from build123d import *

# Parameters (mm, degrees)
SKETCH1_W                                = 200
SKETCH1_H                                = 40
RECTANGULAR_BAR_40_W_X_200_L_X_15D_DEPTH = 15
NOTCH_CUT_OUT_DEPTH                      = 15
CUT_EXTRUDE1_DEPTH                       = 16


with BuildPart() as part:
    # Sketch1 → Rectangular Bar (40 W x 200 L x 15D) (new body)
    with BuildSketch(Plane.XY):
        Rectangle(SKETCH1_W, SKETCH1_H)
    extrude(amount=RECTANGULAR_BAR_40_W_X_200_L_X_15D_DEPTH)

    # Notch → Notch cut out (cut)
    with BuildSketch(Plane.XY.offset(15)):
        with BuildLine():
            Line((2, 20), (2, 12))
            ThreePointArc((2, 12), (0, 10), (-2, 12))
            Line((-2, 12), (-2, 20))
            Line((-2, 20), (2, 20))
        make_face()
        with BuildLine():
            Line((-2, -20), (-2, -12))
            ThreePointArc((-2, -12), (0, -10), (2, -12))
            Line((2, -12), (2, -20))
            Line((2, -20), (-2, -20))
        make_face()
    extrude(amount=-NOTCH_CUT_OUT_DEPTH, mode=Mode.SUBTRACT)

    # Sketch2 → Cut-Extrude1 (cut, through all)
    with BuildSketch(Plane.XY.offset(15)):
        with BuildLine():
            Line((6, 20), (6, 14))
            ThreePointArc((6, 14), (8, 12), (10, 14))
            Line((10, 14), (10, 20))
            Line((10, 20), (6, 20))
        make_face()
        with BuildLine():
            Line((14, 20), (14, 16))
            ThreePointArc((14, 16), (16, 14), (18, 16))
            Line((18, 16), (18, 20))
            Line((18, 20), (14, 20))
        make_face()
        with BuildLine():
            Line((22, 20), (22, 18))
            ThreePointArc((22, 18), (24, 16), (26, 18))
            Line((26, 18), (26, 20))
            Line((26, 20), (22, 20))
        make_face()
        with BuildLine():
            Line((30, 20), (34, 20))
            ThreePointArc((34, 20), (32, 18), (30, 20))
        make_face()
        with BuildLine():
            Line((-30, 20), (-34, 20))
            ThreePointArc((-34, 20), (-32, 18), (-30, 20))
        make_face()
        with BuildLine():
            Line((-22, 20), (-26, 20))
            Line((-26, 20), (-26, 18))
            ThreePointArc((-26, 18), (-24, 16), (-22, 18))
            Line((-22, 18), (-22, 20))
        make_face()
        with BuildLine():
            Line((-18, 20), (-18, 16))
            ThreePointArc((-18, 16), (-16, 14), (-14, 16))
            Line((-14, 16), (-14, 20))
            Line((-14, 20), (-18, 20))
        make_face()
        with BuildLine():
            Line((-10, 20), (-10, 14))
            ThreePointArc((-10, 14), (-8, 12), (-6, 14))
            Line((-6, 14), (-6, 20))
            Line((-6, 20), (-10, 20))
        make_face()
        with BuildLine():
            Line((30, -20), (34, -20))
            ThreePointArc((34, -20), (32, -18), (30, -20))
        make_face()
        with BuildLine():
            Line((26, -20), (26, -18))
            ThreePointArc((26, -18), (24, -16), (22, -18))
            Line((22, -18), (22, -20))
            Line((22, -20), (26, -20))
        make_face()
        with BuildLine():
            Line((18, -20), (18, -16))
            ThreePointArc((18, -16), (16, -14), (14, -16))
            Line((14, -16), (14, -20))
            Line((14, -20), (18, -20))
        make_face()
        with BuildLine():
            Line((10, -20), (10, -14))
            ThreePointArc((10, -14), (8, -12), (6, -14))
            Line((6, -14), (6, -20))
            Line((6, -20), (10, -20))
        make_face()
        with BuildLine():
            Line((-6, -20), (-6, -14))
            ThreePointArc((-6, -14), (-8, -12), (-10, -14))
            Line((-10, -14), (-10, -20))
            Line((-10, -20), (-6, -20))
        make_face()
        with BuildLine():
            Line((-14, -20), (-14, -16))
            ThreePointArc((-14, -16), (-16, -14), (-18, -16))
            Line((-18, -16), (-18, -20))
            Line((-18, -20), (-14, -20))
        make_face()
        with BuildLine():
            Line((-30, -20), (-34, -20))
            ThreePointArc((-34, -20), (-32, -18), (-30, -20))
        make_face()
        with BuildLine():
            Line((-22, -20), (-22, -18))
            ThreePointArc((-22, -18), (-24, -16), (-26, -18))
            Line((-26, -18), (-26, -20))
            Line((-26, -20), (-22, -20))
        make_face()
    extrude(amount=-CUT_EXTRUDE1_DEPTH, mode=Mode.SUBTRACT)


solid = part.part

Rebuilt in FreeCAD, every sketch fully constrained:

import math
import FreeCAD as App
import Part
import Sketcher
from FreeCAD import Vector

doc = App.newDocument("Part")
body = doc.addObject("PartDesign::Body", "Body")

# Sketch on XY plane
sketch1 = body.newObject("Sketcher::SketchObject", "Sketch")
sketch1.AttachmentSupport = (doc.getObject("XY_Plane"), [""])
sketch1.MapMode = "FlatFace"
sketch1.addGeometry(Part.LineSegment(Vector(-100, 20, 0), Vector(-100, -20, 0)), False)
sketch1.addGeometry(Part.LineSegment(Vector(-100, -20, 0), Vector(100, -20, 0)), False)
sketch1.addGeometry(Part.LineSegment(Vector(100, -20, 0), Vector(100, 20, 0)), False)
sketch1.addGeometry(Part.LineSegment(Vector(100, 20, 0), Vector(-100, 20, 0)), False)
sketch1.addConstraint(Sketcher.Constraint("Coincident", 0, 2, 1, 1))
sketch1.addConstraint(Sketcher.Constraint("Coincident", 1, 2, 2, 1))
sketch1.addConstraint(Sketcher.Constraint("Coincident", 2, 2, 3, 1))
sketch1.addConstraint(Sketcher.Constraint("Coincident", 3, 2, 0, 1))
sketch1.addConstraint(Sketcher.Constraint("Vertical", 0))
sketch1.addConstraint(Sketcher.Constraint("Horizontal", 1))
sketch1.addConstraint(Sketcher.Constraint("Vertical", 2))
sketch1.addConstraint(Sketcher.Constraint("Horizontal", 3))
sketch1.addConstraint(Sketcher.Constraint("Symmetric", 0, 2, 2, 2, -1, 1))
sketch1.addConstraint(Sketcher.Constraint("DistanceX", 1, 1, 1, 2, 200.0))
sketch1.addConstraint(Sketcher.Constraint("DistanceY", 0, 2, 0, 1, 40.0))
pad1 = body.newObject("PartDesign::Pad", "Pad")
pad1.Profile = sketch1
pad1.Length = 15

# Sketch on XY plane
sketch2 = body.newObject("Sketcher::SketchObject", "Sketch001")
sketch2.AttachmentSupport = (doc.getObject("XY_Plane"), [""])
sketch2.MapMode = "FlatFace"
sketch2.AttachmentOffset = App.Placement(Vector(0, 0, 15), App.Rotation())
sketch2.addGeometry(Part.LineSegment(Vector(2, 12, 0), Vector(2, 20, 0)), False)
sketch2.addGeometry(Part.LineSegment(Vector(2, 20, 0), Vector(-2, 20, 0)), False)
sketch2.addGeometry(Part.LineSegment(Vector(-2, 20, 0), Vector(-2, 12, 0)), False)
sketch2.addGeometry(Part.ArcOfCircle(Part.Circle(Vector(0, 12, 0), Vector(0, 0, 1), 2), math.radians(180), math.radians(360)), False)
sketch2.addGeometry(Part.LineSegment(Vector(-2, -12, 0), Vector(-2, -20, 0)), False)
sketch2.addGeometry(Part.LineSegment(Vector(-2, -20, 0), Vector(2, -20, 0)), False)
sketch2.addGeometry(Part.LineSegment(Vector(2, -20, 0), Vector(2, -12, 0)), False)
sketch2.addGeometry(Part.ArcOfCircle(Part.Circle(Vector(0, -12, 0), Vector(0, 0, 1), 2), math.radians(0), math.radians(180)), False)
sketch2.addConstraint(Sketcher.Constraint("Coincident", 0, 2, 1, 1))
sketch2.addConstraint(Sketcher.Constraint("Coincident", 1, 2, 2, 1))
sketch2.addConstraint(Sketcher.Constraint("Tangent", 2, 2, 3, 1))
sketch2.addConstraint(Sketcher.Constraint("Tangent", 3, 2, 0, 1))
sketch2.addConstraint(Sketcher.Constraint("Coincident", 4, 2, 5, 1))
sketch2.addConstraint(Sketcher.Constraint("Coincident", 5, 2, 6, 1))
sketch2.addConstraint(Sketcher.Constraint("Tangent", 6, 2, 7, 1))
sketch2.addConstraint(Sketcher.Constraint("Tangent", 7, 2, 4, 1))
sketch2.addConstraint(Sketcher.Constraint("Vertical", 0))
sketch2.addConstraint(Sketcher.Constraint("Horizontal", 1))
sketch2.addConstraint(Sketcher.Constraint("Vertical", 2))
sketch2.addConstraint(Sketcher.Constraint("Vertical", 4))
sketch2.addConstraint(Sketcher.Constraint("Horizontal", 5))
sketch2.addConstraint(Sketcher.Constraint("Vertical", 6))
sketch2.addConstraint(Sketcher.Constraint("Equal", 3, 7))
sketch2.addConstraint(Sketcher.Constraint("Symmetric", 3, 3, 7, 3, -1, 1))
sketch2.addConstraint(Sketcher.Constraint("Symmetric", 1, 2, 4, 2, -1))
sketch2.addConstraint(Sketcher.Constraint("Radius", 3, 2.0))
sketch2.addConstraint(Sketcher.Constraint("DistanceY", 0, 1, 0, 2, 8.0))
sketch2.addConstraint(Sketcher.Constraint("DistanceY", -1, 1, 3, 3, 12.0))
pocket1 = body.newObject("PartDesign::Pocket", "Pocket")
pocket1.Profile = sketch2
pocket1.Length = 15

# Sketch on XY plane
sketch3 = body.newObject("Sketcher::SketchObject", "Sketch002")
sketch3.AttachmentSupport = (doc.getObject("XY_Plane"), [""])
sketch3.MapMode = "FlatFace"
sketch3.AttachmentOffset = App.Placement(Vector(0, 0, 15), App.Rotation())
sketch3.addGeometry(Part.LineSegment(Vector(6, 20, 0), Vector(6, 14, 0)), False)
sketch3.addGeometry(Part.ArcOfCircle(Part.Circle(Vector(8, 14, 0), Vector(0, 0, 1), 2), math.radians(180), math.radians(360)), False)
sketch3.addGeometry(Part.LineSegment(Vector(10, 14, 0), Vector(10, 20, 0)), False)
sketch3.addGeometry(Part.LineSegment(Vector(10, 20, 0), Vector(6, 20, 0)), False)
sketch3.addGeometry(Part.LineSegment(Vector(14, 20, 0), Vector(14, 16, 0)), False)
sketch3.addGeometry(Part.ArcOfCircle(Part.Circle(Vector(16, 16, 0), Vector(0, 0, 1), 2), math.radians(180), math.radians(360)), False)
sketch3.addGeometry(Part.LineSegment(Vector(18, 16, 0), Vector(18, 20, 0)), False)
sketch3.addGeometry(Part.LineSegment(Vector(18, 20, 0), Vector(14, 20, 0)), False)
sketch3.addGeometry(Part.LineSegment(Vector(22, 20, 0), Vector(22, 18, 0)), False)
sketch3.addGeometry(Part.ArcOfCircle(Part.Circle(Vector(24, 18, 0), Vector(0, 0, 1), 2), math.radians(180), math.radians(360)), False)
sketch3.addGeometry(Part.LineSegment(Vector(26, 18, 0), Vector(26, 20, 0)), False)
sketch3.addGeometry(Part.LineSegment(Vector(26, 20, 0), Vector(22, 20, 0)), False)
sketch3.addGeometry(Part.LineSegment(Vector(34, 20, 0), Vector(30, 20, 0)), False)
sketch3.addGeometry(Part.ArcOfCircle(Part.Circle(Vector(32, 20, 0), Vector(0, 0, 1), 2), math.radians(180), math.radians(360)), False)
sketch3.addGeometry(Part.LineSegment(Vector(-30, 20, 0), Vector(-34, 20, 0)), False)
sketch3.addGeometry(Part.ArcOfCircle(Part.Circle(Vector(-32, 20, 0), Vector(0, 0, 1), 2), math.radians(180), math.radians(360)), False)
sketch3.addGeometry(Part.LineSegment(Vector(-22, 20, 0), Vector(-26, 20, 0)), False)
sketch3.addGeometry(Part.LineSegment(Vector(-26, 20, 0), Vector(-26, 18, 0)), False)
sketch3.addGeometry(Part.ArcOfCircle(Part.Circle(Vector(-24, 18, 0), Vector(0, 0, 1), 2), math.radians(180), math.radians(360)), False)
sketch3.addGeometry(Part.LineSegment(Vector(-22, 18, 0), Vector(-22, 20, 0)), False)
sketch3.addGeometry(Part.LineSegment(Vector(-18, 20, 0), Vector(-18, 16, 0)), False)
sketch3.addGeometry(Part.ArcOfCircle(Part.Circle(Vector(-16, 16, 0), Vector(0, 0, 1), 2), math.radians(180), math.radians(360)), False)
sketch3.addGeometry(Part.LineSegment(Vector(-14, 16, 0), Vector(-14, 20, 0)), False)
sketch3.addGeometry(Part.LineSegment(Vector(-14, 20, 0), Vector(-18, 20, 0)), False)
sketch3.addGeometry(Part.LineSegment(Vector(-10, 20, 0), Vector(-10, 14, 0)), False)
sketch3.addGeometry(Part.ArcOfCircle(Part.Circle(Vector(-8, 14, 0), Vector(0, 0, 1), 2), math.radians(180), math.radians(360)), False)
sketch3.addGeometry(Part.LineSegment(Vector(-6, 14, 0), Vector(-6, 20, 0)), False)
sketch3.addGeometry(Part.LineSegment(Vector(-6, 20, 0), Vector(-10, 20, 0)), False)
sketch3.addGeometry(Part.LineSegment(Vector(30, -20, 0), Vector(34, -20, 0)), False)
sketch3.addGeometry(Part.ArcOfCircle(Part.Circle(Vector(32, -20, 0), Vector(0, 0, 1), 2), math.radians(0), math.radians(180)), False)
sketch3.addGeometry(Part.LineSegment(Vector(26, -20, 0), Vector(26, -18, 0)), False)
sketch3.addGeometry(Part.ArcOfCircle(Part.Circle(Vector(24, -18, 0), Vector(0, 0, 1), 2), math.radians(0), math.radians(180)), False)
sketch3.addGeometry(Part.LineSegment(Vector(22, -18, 0), Vector(22, -20, 0)), False)
sketch3.addGeometry(Part.LineSegment(Vector(22, -20, 0), Vector(26, -20, 0)), False)
sketch3.addGeometry(Part.LineSegment(Vector(18, -20, 0), Vector(18, -16, 0)), False)
sketch3.addGeometry(Part.ArcOfCircle(Part.Circle(Vector(16, -16, 0), Vector(0, 0, 1), 2), math.radians(0), math.radians(180)), False)
sketch3.addGeometry(Part.LineSegment(Vector(14, -16, 0), Vector(14, -20, 0)), False)
sketch3.addGeometry(Part.LineSegment(Vector(14, -20, 0), Vector(18, -20, 0)), False)
sketch3.addGeometry(Part.LineSegment(Vector(10, -20, 0), Vector(10, -14, 0)), False)
sketch3.addGeometry(Part.ArcOfCircle(Part.Circle(Vector(8, -14, 0), Vector(0, 0, 1), 2), math.radians(0), math.radians(180)), False)
sketch3.addGeometry(Part.LineSegment(Vector(6, -14, 0), Vector(6, -20, 0)), False)
sketch3.addGeometry(Part.LineSegment(Vector(6, -20, 0), Vector(10, -20, 0)), False)
sketch3.addGeometry(Part.LineSegment(Vector(-6, -20, 0), Vector(-6, -14, 0)), False)
sketch3.addGeometry(Part.ArcOfCircle(Part.Circle(Vector(-8, -14, 0), Vector(0, 0, 1), 2), math.radians(0), math.radians(180)), False)
sketch3.addGeometry(Part.LineSegment(Vector(-10, -14, 0), Vector(-10, -20, 0)), False)
sketch3.addGeometry(Part.LineSegment(Vector(-10, -20, 0), Vector(-6, -20, 0)), False)
sketch3.addGeometry(Part.LineSegment(Vector(-14, -20, 0), Vector(-14, -16, 0)), False)
sketch3.addGeometry(Part.ArcOfCircle(Part.Circle(Vector(-16, -16, 0), Vector(0, 0, 1), 2), math.radians(0), math.radians(180)), False)
sketch3.addGeometry(Part.LineSegment(Vector(-18, -16, 0), Vector(-18, -20, 0)), False)
sketch3.addGeometry(Part.LineSegment(Vector(-18, -20, 0), Vector(-14, -20, 0)), False)
sketch3.addGeometry(Part.LineSegment(Vector(-34, -20, 0), Vector(-30, -20, 0)), False)
sketch3.addGeometry(Part.ArcOfCircle(Part.Circle(Vector(-32, -20, 0), Vector(0, 0, 1), 2), math.radians(0), math.radians(180)), False)
sketch3.addGeometry(Part.LineSegment(Vector(-22, -20, 0), Vector(-22, -18, 0)), False)
sketch3.addGeometry(Part.ArcOfCircle(Part.Circle(Vector(-24, -18, 0), Vector(0, 0, 1), 2), math.radians(0), math.radians(180)), False)
sketch3.addGeometry(Part.LineSegment(Vector(-26, -18, 0), Vector(-26, -20, 0)), False)
sketch3.addGeometry(Part.LineSegment(Vector(-26, -20, 0), Vector(-22, -20, 0)), False)
sketch3.addConstraint(Sketcher.Constraint("Tangent", 0, 2, 1, 1))
sketch3.addConstraint(Sketcher.Constraint("Tangent", 1, 2, 2, 1))
sketch3.addConstraint(Sketcher.Constraint("Coincident", 2, 2, 3, 1))
sketch3.addConstraint(Sketcher.Constraint("Coincident", 3, 2, 0, 1))
sketch3.addConstraint(Sketcher.Constraint("Tangent", 4, 2, 5, 1))
sketch3.addConstraint(Sketcher.Constraint("Tangent", 5, 2, 6, 1))
sketch3.addConstraint(Sketcher.Constraint("Coincident", 6, 2, 7, 1))
sketch3.addConstraint(Sketcher.Constraint("Coincident", 7, 2, 4, 1))
sketch3.addConstraint(Sketcher.Constraint("Tangent", 8, 2, 9, 1))
sketch3.addConstraint(Sketcher.Constraint("Tangent", 9, 2, 10, 1))
sketch3.addConstraint(Sketcher.Constraint("Coincident", 10, 2, 11, 1))
sketch3.addConstraint(Sketcher.Constraint("Coincident", 11, 2, 8, 1))
sketch3.addConstraint(Sketcher.Constraint("Coincident", 12, 1, 13, 2))
sketch3.addConstraint(Sketcher.Constraint("Coincident", 13, 1, 12, 2))
sketch3.addConstraint(Sketcher.Constraint("Coincident", 14, 1, 15, 2))
sketch3.addConstraint(Sketcher.Constraint("Coincident", 15, 1, 14, 2))
sketch3.addConstraint(Sketcher.Constraint("Coincident", 16, 2, 17, 1))
sketch3.addConstraint(Sketcher.Constraint("Tangent", 17, 2, 18, 1))
sketch3.addConstraint(Sketcher.Constraint("Tangent", 18, 2, 19, 1))
sketch3.addConstraint(Sketcher.Constraint("Coincident", 19, 2, 16, 1))
sketch3.addConstraint(Sketcher.Constraint("Tangent", 20, 2, 21, 1))
sketch3.addConstraint(Sketcher.Constraint("Tangent", 21, 2, 22, 1))
sketch3.addConstraint(Sketcher.Constraint("Coincident", 22, 2, 23, 1))
sketch3.addConstraint(Sketcher.Constraint("Coincident", 23, 2, 20, 1))
sketch3.addConstraint(Sketcher.Constraint("Tangent", 24, 2, 25, 1))
sketch3.addConstraint(Sketcher.Constraint("Tangent", 25, 2, 26, 1))
sketch3.addConstraint(Sketcher.Constraint("Coincident", 26, 2, 27, 1))
sketch3.addConstraint(Sketcher.Constraint("Coincident", 27, 2, 24, 1))
sketch3.addConstraint(Sketcher.Constraint("Coincident", 28, 1, 29, 2))
sketch3.addConstraint(Sketcher.Constraint("Coincident", 29, 1, 28, 2))
sketch3.addConstraint(Sketcher.Constraint("Tangent", 30, 2, 31, 1))
sketch3.addConstraint(Sketcher.Constraint("Tangent", 31, 2, 32, 1))
sketch3.addConstraint(Sketcher.Constraint("Coincident", 32, 2, 33, 1))
sketch3.addConstraint(Sketcher.Constraint("Coincident", 33, 2, 30, 1))
sketch3.addConstraint(Sketcher.Constraint("Tangent", 34, 2, 35, 1))
sketch3.addConstraint(Sketcher.Constraint("Tangent", 35, 2, 36, 1))
sketch3.addConstraint(Sketcher.Constraint("Coincident", 36, 2, 37, 1))
sketch3.addConstraint(Sketcher.Constraint("Coincident", 37, 2, 34, 1))
sketch3.addConstraint(Sketcher.Constraint("Tangent", 38, 2, 39, 1))
sketch3.addConstraint(Sketcher.Constraint("Tangent", 39, 2, 40, 1))
sketch3.addConstraint(Sketcher.Constraint("Coincident", 40, 2, 41, 1))
sketch3.addConstraint(Sketcher.Constraint("Coincident", 41, 2, 38, 1))
sketch3.addConstraint(Sketcher.Constraint("Tangent", 42, 2, 43, 1))
sketch3.addConstraint(Sketcher.Constraint("Tangent", 43, 2, 44, 1))
sketch3.addConstraint(Sketcher.Constraint("Coincident", 44, 2, 45, 1))
sketch3.addConstraint(Sketcher.Constraint("Coincident", 45, 2, 42, 1))
sketch3.addConstraint(Sketcher.Constraint("Tangent", 46, 2, 47, 1))
sketch3.addConstraint(Sketcher.Constraint("Tangent", 47, 2, 48, 1))
sketch3.addConstraint(Sketcher.Constraint("Coincident", 48, 2, 49, 1))
sketch3.addConstraint(Sketcher.Constraint("Coincident", 49, 2, 46, 1))
sketch3.addConstraint(Sketcher.Constraint("Coincident", 50, 1, 51, 2))
sketch3.addConstraint(Sketcher.Constraint("Coincident", 51, 1, 50, 2))
sketch3.addConstraint(Sketcher.Constraint("Tangent", 52, 2, 53, 1))
sketch3.addConstraint(Sketcher.Constraint("Tangent", 53, 2, 54, 1))
sketch3.addConstraint(Sketcher.Constraint("Coincident", 54, 2, 55, 1))
sketch3.addConstraint(Sketcher.Constraint("Coincident", 55, 2, 52, 1))
sketch3.addConstraint(Sketcher.Constraint("Vertical", 0))
sketch3.addConstraint(Sketcher.Constraint("Vertical", 2))
sketch3.addConstraint(Sketcher.Constraint("Horizontal", 3))
sketch3.addConstraint(Sketcher.Constraint("Vertical", 4))
sketch3.addConstraint(Sketcher.Constraint("Vertical", 6))
sketch3.addConstraint(Sketcher.Constraint("Horizontal", 7))
sketch3.addConstraint(Sketcher.Constraint("Vertical", 8))
sketch3.addConstraint(Sketcher.Constraint("Vertical", 10))
sketch3.addConstraint(Sketcher.Constraint("Horizontal", 11))
sketch3.addConstraint(Sketcher.Constraint("Horizontal", 12))
sketch3.addConstraint(Sketcher.Constraint("Horizontal", 14))
sketch3.addConstraint(Sketcher.Constraint("Horizontal", 16))
sketch3.addConstraint(Sketcher.Constraint("Vertical", 17))
sketch3.addConstraint(Sketcher.Constraint("Vertical", 19))
sketch3.addConstraint(Sketcher.Constraint("Vertical", 20))
sketch3.addConstraint(Sketcher.Constraint("Vertical", 22))
sketch3.addConstraint(Sketcher.Constraint("Horizontal", 23))
sketch3.addConstraint(Sketcher.Constraint("Vertical", 24))
sketch3.addConstraint(Sketcher.Constraint("Vertical", 26))
sketch3.addConstraint(Sketcher.Constraint("Horizontal", 27))
sketch3.addConstraint(Sketcher.Constraint("Horizontal", 28))
sketch3.addConstraint(Sketcher.Constraint("Vertical", 30))
sketch3.addConstraint(Sketcher.Constraint("Vertical", 32))
sketch3.addConstraint(Sketcher.Constraint("Horizontal", 33))
sketch3.addConstraint(Sketcher.Constraint("Vertical", 34))
sketch3.addConstraint(Sketcher.Constraint("Vertical", 36))
sketch3.addConstraint(Sketcher.Constraint("Horizontal", 37))
sketch3.addConstraint(Sketcher.Constraint("Vertical", 38))
sketch3.addConstraint(Sketcher.Constraint("Vertical", 40))
sketch3.addConstraint(Sketcher.Constraint("Horizontal", 41))
sketch3.addConstraint(Sketcher.Constraint("Vertical", 42))
sketch3.addConstraint(Sketcher.Constraint("Vertical", 44))
sketch3.addConstraint(Sketcher.Constraint("Horizontal", 45))
sketch3.addConstraint(Sketcher.Constraint("Vertical", 46))
sketch3.addConstraint(Sketcher.Constraint("Vertical", 48))
sketch3.addConstraint(Sketcher.Constraint("Horizontal", 49))
sketch3.addConstraint(Sketcher.Constraint("Horizontal", 50))
sketch3.addConstraint(Sketcher.Constraint("Vertical", 52))
sketch3.addConstraint(Sketcher.Constraint("Vertical", 54))
sketch3.addConstraint(Sketcher.Constraint("Horizontal", 55))
sketch3.addConstraint(Sketcher.Constraint("Equal", 1, 5))
sketch3.addConstraint(Sketcher.Constraint("Equal", 5, 9))
sketch3.addConstraint(Sketcher.Constraint("Equal", 9, 13))
sketch3.addConstraint(Sketcher.Constraint("Equal", 13, 15))
sketch3.addConstraint(Sketcher.Constraint("Equal", 15, 18))
sketch3.addConstraint(Sketcher.Constraint("Equal", 18, 21))
sketch3.addConstraint(Sketcher.Constraint("Equal", 21, 25))
sketch3.addConstraint(Sketcher.Constraint("Equal", 25, 29))
sketch3.addConstraint(Sketcher.Constraint("Equal", 29, 31))
sketch3.addConstraint(Sketcher.Constraint("Equal", 31, 35))
sketch3.addConstraint(Sketcher.Constraint("Equal", 35, 39))
sketch3.addConstraint(Sketcher.Constraint("Equal", 39, 43))
sketch3.addConstraint(Sketcher.Constraint("Equal", 43, 47))
sketch3.addConstraint(Sketcher.Constraint("Equal", 47, 51))
sketch3.addConstraint(Sketcher.Constraint("Equal", 51, 53))
sketch3.addConstraint(Sketcher.Constraint("Symmetric", 15, 3, 29, 3, -1, 1))
sketch3.addConstraint(Sketcher.Constraint("Symmetric", 18, 3, 31, 3, -1, 1))
sketch3.addConstraint(Sketcher.Constraint("Symmetric", 21, 3, 35, 3, -1, 1))
sketch3.addConstraint(Sketcher.Constraint("Symmetric", 25, 3, 39, 3, -1, 1))
sketch3.addConstraint(Sketcher.Constraint("Symmetric", 1, 3, 43, 3, -1, 1))
sketch3.addConstraint(Sketcher.Constraint("Symmetric", 5, 3, 47, 3, -1, 1))
sketch3.addConstraint(Sketcher.Constraint("Symmetric", 13, 3, 51, 3, -1, 1))
sketch3.addConstraint(Sketcher.Constraint("Symmetric", 9, 3, 53, 3, -1, 1))
sketch3.addConstraint(Sketcher.Constraint("Symmetric", 13, 3, 15, 3, -2))
sketch3.addConstraint(Sketcher.Constraint("Symmetric", 9, 3, 18, 3, -2))
sketch3.addConstraint(Sketcher.Constraint("Symmetric", 5, 3, 21, 3, -2))
sketch3.addConstraint(Sketcher.Constraint("Symmetric", 1, 3, 25, 3, -2))
sketch3.addConstraint(Sketcher.Constraint("Horizontal", 15, 3, 2, 2))
sketch3.addConstraint(Sketcher.Constraint("Horizontal", 3, 2, 6, 2))
sketch3.addConstraint(Sketcher.Constraint("Horizontal", 7, 2, 10, 2))
sketch3.addConstraint(Sketcher.Constraint("Horizontal", 11, 2, 12, 1))
sketch3.addConstraint(Sketcher.Constraint("Horizontal", 13, 1, 14, 1))
sketch3.addConstraint(Sketcher.Constraint("Horizontal", 15, 1, 16, 2))
sketch3.addConstraint(Sketcher.Constraint("Horizontal", 19, 2, 22, 2))
sketch3.addConstraint(Sketcher.Constraint("Horizontal", 23, 2, 26, 2))
sketch3.addConstraint(Sketcher.Constraint("Horizontal", 51, 3, 28, 1))
sketch3.addConstraint(Sketcher.Constraint("Horizontal", 29, 1, 32, 2))
sketch3.addConstraint(Sketcher.Constraint("Horizontal", 33, 2, 36, 2))
sketch3.addConstraint(Sketcher.Constraint("Horizontal", 37, 2, 40, 2))
sketch3.addConstraint(Sketcher.Constraint("Horizontal", 41, 2, 44, 2))
sketch3.addConstraint(Sketcher.Constraint("Horizontal", 45, 2, 48, 2))
sketch3.addConstraint(Sketcher.Constraint("Horizontal", 49, 2, 50, 1))
sketch3.addConstraint(Sketcher.Constraint("Horizontal", 51, 1, 54, 2))
sketch3.addConstraint(Sketcher.Constraint("Equal", 55, 4))
sketch3.addConstraint(Sketcher.Constraint("Radius", 1, 2.0))
sketch3.addConstraint(Sketcher.Constraint("DistanceY", 0, 2, 0, 1, 6.0))
sketch3.addConstraint(Sketcher.Constraint("DistanceY", 8, 2, 8, 1, 2.0))
sketch3.addConstraint(Sketcher.Constraint("DistanceX", -1, 1, 1, 3, 8.0))
sketch3.addConstraint(Sketcher.Constraint("DistanceY", -1, 1, 1, 3, 14.0))
sketch3.addConstraint(Sketcher.Constraint("DistanceX", -1, 1, 5, 3, 16.0))
sketch3.addConstraint(Sketcher.Constraint("DistanceX", -1, 1, 9, 3, 24.0))
sketch3.addConstraint(Sketcher.Constraint("DistanceX", -1, 1, 13, 3, 32.0))
pocket2 = body.newObject("PartDesign::Pocket", "Pocket001")
pocket2.Profile = sketch3
pocket2.Type = "ThroughAll"

doc.recompute()
